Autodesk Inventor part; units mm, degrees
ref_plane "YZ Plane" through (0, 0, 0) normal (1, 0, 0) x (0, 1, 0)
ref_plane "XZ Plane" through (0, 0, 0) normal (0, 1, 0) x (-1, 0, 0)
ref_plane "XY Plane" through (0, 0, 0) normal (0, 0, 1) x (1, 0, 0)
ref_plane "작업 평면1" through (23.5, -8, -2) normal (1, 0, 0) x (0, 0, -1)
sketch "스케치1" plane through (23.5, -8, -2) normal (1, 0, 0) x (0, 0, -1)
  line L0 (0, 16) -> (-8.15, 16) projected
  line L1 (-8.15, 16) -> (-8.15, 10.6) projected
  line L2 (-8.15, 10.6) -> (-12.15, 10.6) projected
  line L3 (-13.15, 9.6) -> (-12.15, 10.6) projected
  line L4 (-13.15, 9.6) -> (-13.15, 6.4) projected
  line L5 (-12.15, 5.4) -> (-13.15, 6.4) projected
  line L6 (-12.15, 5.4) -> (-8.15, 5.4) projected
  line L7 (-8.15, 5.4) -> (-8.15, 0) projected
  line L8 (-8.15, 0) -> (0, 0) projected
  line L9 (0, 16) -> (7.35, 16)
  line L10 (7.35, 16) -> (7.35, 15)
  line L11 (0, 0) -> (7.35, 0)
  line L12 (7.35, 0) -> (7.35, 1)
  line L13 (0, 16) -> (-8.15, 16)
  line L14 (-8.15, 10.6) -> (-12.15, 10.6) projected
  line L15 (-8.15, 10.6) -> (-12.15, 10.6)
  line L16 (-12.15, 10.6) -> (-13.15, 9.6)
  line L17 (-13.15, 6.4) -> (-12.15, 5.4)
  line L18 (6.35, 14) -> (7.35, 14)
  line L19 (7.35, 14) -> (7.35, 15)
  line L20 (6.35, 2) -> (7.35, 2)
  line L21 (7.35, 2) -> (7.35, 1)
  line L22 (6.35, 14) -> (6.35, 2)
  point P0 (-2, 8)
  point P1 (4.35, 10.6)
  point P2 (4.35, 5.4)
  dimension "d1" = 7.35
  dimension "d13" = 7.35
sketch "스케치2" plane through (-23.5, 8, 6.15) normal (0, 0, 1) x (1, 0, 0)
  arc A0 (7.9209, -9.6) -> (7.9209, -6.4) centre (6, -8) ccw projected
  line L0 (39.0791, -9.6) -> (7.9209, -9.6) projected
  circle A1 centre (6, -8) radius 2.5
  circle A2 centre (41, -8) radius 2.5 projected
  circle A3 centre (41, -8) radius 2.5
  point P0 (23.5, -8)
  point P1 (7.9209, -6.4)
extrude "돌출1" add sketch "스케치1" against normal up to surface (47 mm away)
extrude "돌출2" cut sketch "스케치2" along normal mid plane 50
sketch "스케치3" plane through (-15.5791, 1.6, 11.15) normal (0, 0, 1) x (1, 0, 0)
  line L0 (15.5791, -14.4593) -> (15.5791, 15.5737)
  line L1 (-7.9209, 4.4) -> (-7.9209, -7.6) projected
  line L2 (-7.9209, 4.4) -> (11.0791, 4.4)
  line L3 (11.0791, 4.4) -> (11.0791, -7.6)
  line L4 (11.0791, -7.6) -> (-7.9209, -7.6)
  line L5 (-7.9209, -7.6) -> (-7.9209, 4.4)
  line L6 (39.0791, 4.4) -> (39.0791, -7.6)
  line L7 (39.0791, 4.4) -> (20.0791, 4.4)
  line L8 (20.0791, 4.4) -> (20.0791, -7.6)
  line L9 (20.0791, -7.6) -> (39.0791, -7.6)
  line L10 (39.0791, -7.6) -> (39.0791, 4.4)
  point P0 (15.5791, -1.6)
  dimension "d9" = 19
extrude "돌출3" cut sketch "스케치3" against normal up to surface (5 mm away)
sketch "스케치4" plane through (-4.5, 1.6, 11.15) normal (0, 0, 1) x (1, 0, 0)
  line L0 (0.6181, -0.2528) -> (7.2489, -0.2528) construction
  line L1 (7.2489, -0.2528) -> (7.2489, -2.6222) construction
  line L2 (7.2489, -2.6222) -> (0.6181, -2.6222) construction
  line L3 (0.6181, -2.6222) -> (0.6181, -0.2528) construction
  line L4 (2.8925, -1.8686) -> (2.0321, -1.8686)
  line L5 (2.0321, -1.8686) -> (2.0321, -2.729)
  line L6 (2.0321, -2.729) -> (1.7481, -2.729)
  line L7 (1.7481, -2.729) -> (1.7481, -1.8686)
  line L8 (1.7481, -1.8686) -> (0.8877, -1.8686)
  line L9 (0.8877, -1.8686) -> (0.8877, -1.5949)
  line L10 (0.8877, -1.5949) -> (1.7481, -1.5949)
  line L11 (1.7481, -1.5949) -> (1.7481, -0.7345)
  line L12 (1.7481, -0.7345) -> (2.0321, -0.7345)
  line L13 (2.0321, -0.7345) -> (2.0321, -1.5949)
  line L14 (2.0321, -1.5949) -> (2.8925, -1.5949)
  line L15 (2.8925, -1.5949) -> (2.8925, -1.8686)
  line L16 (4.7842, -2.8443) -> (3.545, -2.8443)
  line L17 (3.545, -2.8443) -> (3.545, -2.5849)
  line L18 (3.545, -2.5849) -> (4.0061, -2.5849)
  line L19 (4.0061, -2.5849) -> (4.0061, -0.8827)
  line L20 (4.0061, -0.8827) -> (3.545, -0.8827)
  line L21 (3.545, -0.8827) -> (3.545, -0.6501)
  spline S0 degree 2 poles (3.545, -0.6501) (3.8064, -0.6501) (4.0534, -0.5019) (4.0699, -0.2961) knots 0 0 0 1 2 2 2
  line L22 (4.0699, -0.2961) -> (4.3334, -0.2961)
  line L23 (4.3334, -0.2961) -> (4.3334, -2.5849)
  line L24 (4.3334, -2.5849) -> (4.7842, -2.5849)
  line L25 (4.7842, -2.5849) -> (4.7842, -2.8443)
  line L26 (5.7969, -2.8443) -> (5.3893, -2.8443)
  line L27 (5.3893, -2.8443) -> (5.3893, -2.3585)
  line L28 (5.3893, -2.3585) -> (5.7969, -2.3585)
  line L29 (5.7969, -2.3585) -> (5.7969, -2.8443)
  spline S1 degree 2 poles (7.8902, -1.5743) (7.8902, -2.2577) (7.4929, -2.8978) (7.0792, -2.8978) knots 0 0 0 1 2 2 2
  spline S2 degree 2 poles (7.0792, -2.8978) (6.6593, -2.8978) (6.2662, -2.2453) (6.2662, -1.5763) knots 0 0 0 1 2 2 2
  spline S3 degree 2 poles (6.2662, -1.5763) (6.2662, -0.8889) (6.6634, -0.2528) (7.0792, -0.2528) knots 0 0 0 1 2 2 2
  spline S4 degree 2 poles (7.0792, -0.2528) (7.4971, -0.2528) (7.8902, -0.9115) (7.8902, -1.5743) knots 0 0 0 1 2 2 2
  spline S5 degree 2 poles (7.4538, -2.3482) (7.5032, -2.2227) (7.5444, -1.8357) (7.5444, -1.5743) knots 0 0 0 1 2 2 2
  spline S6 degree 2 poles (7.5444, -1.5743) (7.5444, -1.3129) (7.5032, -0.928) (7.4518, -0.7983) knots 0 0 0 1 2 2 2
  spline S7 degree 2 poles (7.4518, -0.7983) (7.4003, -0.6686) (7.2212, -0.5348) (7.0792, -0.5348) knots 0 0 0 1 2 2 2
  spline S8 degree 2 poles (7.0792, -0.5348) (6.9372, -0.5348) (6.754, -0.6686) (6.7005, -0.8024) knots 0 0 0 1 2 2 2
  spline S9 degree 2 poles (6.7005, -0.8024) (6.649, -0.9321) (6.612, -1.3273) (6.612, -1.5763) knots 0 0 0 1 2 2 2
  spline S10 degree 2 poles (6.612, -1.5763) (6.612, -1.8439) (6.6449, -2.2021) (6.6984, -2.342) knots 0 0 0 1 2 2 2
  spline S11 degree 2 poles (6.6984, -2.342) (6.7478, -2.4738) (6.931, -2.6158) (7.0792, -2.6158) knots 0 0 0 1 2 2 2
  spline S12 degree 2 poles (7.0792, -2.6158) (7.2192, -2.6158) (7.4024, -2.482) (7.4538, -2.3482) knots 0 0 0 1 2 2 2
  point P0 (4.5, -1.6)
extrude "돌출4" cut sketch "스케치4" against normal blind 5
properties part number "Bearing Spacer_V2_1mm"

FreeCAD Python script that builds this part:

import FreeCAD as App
import Part
import Sketcher


def add_polygon(sketch, points):
    """Adds a closed chain of lines whose ends are joined by coincident constraints."""
    first, n = sketch.GeometryCount, len(points)
    for a, b in zip(points, points[1:] + points[:1]):
        sketch.addGeometry(Part.LineSegment(App.Vector(*a, 0), App.Vector(*b, 0)), False)
    for i in range(n):
        sketch.addConstraint(Sketcher.Constraint("Coincident", first + i, 2, first + (i + 1) % n, 1))

doc = App.newDocument("Part")
body = doc.addObject("PartDesign::Body", "Body")

# Sketch on YZ plane
sketch1 = body.newObject("Sketcher::SketchObject", "Sketch")
sketch1.AttachmentSupport = (doc.getObject("YZ_Plane"), [""])
sketch1.MapMode = "FlatFace"
sketch1.AttachmentOffset = App.Placement(App.Vector(0, 0, 23.5), App.Rotation())
add_polygon(sketch1, [(8, -9.3), (8, 6.2), (2.6, 6.2), (2.6, 10.2), (1.6, 11.2), (-1.6, 11.2), (-2.6, 10.2), (-2.6, 6.2), (-8, 6.2), (-8, -9.3), (-6, -9.3), (-6, -8.3), (6, -8.3), (6, -9.3)])  # lines 0-13
sketch1.addConstraint([
    Sketcher.Constraint("Vertical", 0),
    Sketcher.Constraint("Horizontal", 1),
    Sketcher.Constraint("Vertical", 2),
    Sketcher.Constraint("Horizontal", 4),
    Sketcher.Constraint("Vertical", 6),
    Sketcher.Constraint("Horizontal", 7),
    Sketcher.Constraint("Vertical", 8),
    Sketcher.Constraint("Horizontal", 9),
    Sketcher.Constraint("Vertical", 10),
    Sketcher.Constraint("Horizontal", 11),
    Sketcher.Constraint("Vertical", 12),
    Sketcher.Constraint("Horizontal", 13),
    Sketcher.Constraint("Symmetric", 2, 2, 5, 2, -2),
    Sketcher.Constraint("Symmetric", 0, 2, 7, 2, -2),
    Sketcher.Constraint("Symmetric", 9, 2, 12, 2, -2),
    Sketcher.Constraint("Perpendicular", 3, 5),
    Sketcher.Constraint("Equal", 3, 5),
    Sketcher.Constraint("DistanceX", 9, 1, 9, 2, 2.0),
    Sketcher.Constraint("DistanceX", 11, 1, 11, 2, 12.0),
    Sketcher.Constraint("DistanceY", 2, 1, 2, 2, 4.0),
    Sketcher.Constraint("DistanceY", 10, 1, 10, 2, 1.0),
    Sketcher.Constraint("DistanceX", 1, 2, 1, 1, 5.4),
    Sketcher.Constraint("DistanceX", 4, 2, 4, 1, 3.2),
    Sketcher.Constraint("DistanceY", 0, 1, 0, 2, 15.5),
    Sketcher.Constraint("DistanceY", -1, 1, 0, 2, 6.15),
])
pad1 = body.newObject("PartDesign::Pad", "Pad")
pad1.Profile = sketch1
pad1.Length = 47
pad1.Reversed = True

# Sketch on XY plane
sketch2 = body.newObject("Sketcher::SketchObject", "Sketch001")
sketch2.AttachmentSupport = (doc.getObject("XY_Plane"), [""])
sketch2.MapMode = "FlatFace"
sketch2.AttachmentOffset = App.Placement(App.Vector(0, 0, 6.15), App.Rotation())
sketch2.addGeometry([
    Part.Circle(App.Vector(-17.5, 0, 0), App.Vector(0, 0, 1), 2.5),
    Part.Circle(App.Vector(17.5, 0, 0), App.Vector(0, 0, 1), 2.5),
], False)
sketch2.addConstraint([
    Sketcher.Constraint("Equal", 0, 1),
    Sketcher.Constraint("Symmetric", 0, 3, 1, 3, -1, 1),
    Sketcher.Constraint("PointOnObject", 0, 3, -1),
    Sketcher.Constraint("Diameter", 0, 5.0),
    Sketcher.Constraint("DistanceX", 0, 3, 1, 3, 35.0),
])
pocket1 = body.newObject("PartDesign::Pocket", "Pocket")
pocket1.Profile = sketch2
pocket1.Length = 50
pocket1.Midplane = True

# Sketch on XY plane
sketch3 = body.newObject("Sketcher::SketchObject", "Sketch002")
sketch3.AttachmentSupport = (doc.getObject("XY_Plane"), [""])
sketch3.MapMode = "FlatFace"
sketch3.AttachmentOffset = App.Placement(App.Vector(0, 0, 11.15), App.Rotation())
add_polygon(sketch3, [(-4, 6), (-24, 6), (-24, -6), (-4, -6)])  # lines 0-3
add_polygon(sketch3, [(24, -6), (24, 6), (4, 6), (4, -6)])  # lines 4-7
sketch3.addConstraint([
    Sketcher.Constraint("Horizontal", 0),
    Sketcher.Constraint("Vertical", 1),
    Sketcher.Constraint("Horizontal", 2),
    Sketcher.Constraint("Vertical", 3),
    Sketcher.Constraint("Vertical", 4),
    Sketcher.Constraint("Horizontal", 5),
    Sketcher.Constraint("Vertical", 6),
    Sketcher.Constraint("Horizontal", 7),
    Sketcher.Constraint("Symmetric", 1, 2, 4, 2, -1, 1),
    Sketcher.Constraint("Symmetric", 3, 2, 6, 2, -1, 1),
    Sketcher.Constraint("Horizontal", 3, 2, 4, 2),
    Sketcher.Constraint("DistanceX", 0, 2, 0, 1, 19.0),
    Sketcher.Constraint("DistanceY", 1, 2, 1, 1, 12.0),
    Sketcher.Constraint("DistanceX", 3, 2, 4, 2, 28.0),
])
pocket2 = body.newObject("PartDesign::Pocket", "Pocket001")
pocket2.Profile = sketch3
pocket2.Length = 5

# Sketch on XY plane
sketch4 = body.newObject("Sketcher::SketchObject", "Sketch003")
sketch4.AttachmentSupport = (doc.getObject("XY_Plane"), [""])
sketch4.MapMode = "FlatFace"
sketch4.AttachmentOffset = App.Placement(App.Vector(0, 0, 11.15), App.Rotation())
add_polygon(sketch4, [(-2.4679, -0.2686), (-1.6075, -0.2686), (-1.6075, 0.0051), (-2.4679, 0.0051), (-2.4679, 0.8655), (-2.7519, 0.8655), (-2.7519, 0.0051), (-3.6123, 0.0051), (-3.6123, -0.2686), (-2.7519, -0.2686), (-2.7519, -1.129), (-2.4679, -1.129)])  # lines 0-11
sketch4.addGeometry(Part.LineSegment(App.Vector(-0.955, -1.2443, 0), App.Vector(0.2842, -1.2443, 0)), False)  # 12
sketch4.addGeometry(Part.LineSegment(App.Vector(0.2842, -1.2443, 0), App.Vector(0.2842, -0.9849, 0)), False)  # 13
sketch4.addGeometry(Part.LineSegment(App.Vector(0.2842, -0.9849, 0), App.Vector(-0.1666, -0.9849, 0)), False)  # 14
sketch4.addGeometry(Part.LineSegment(App.Vector(-0.1666, -0.9849, 0), App.Vector(-0.1666, 1.3039, 0)), False)  # 15
sketch4.addGeometry(Part.LineSegment(App.Vector(-0.1666, 1.3039, 0), App.Vector(-0.4301, 1.3039, 0)), False)  # 16
sketch4.addGeometry(Part.BSplineCurve([App.Vector(-0.955, 0.9499, 0), App.Vector(-0.6936, 0.9499, 0), App.Vector(-0.4466, 1.0981, 0), App.Vector(-0.4301, 1.3039, 0)], [3, 1, 3], [0, 1, 2], False, 2, [1, 1, 1, 1], False), False)  # 17
sketch4.addGeometry(Part.LineSegment(App.Vector(-0.955, 0.9499, 0), App.Vector(-0.955, 0.7173, 0)), False)  # 18
sketch4.addGeometry(Part.LineSegment(App.Vector(-0.955, 0.7173, 0), App.Vector(-0.4939, 0.7173, 0)), False)  # 19
sketch4.addGeometry(Part.LineSegment(App.Vector(-0.4939, 0.7173, 0), App.Vector(-0.4939, -0.9849, 0)), False)  # 20
sketch4.addGeometry(Part.LineSegment(App.Vector(-0.4939, -0.9849, 0), App.Vector(-0.955, -0.9849, 0)), False)  # 21
sketch4.addGeometry(Part.LineSegment(App.Vector(-0.955, -0.9849, 0), App.Vector(-0.955, -1.2443, 0)), False)  # 22
add_polygon(sketch4, [(0.8893, -1.2443), (1.2969, -1.2443), (1.2969, -0.7585), (0.8893, -0.7585)])  # lines 23-26
sketch4.addGeometry(Part.BSplineCurve([App.Vector(3.3902, 0.0257, 0), App.Vector(3.3902, -0.6577, 0), App.Vector(2.9929, -1.2978, 0), App.Vector(2.5792, -1.2978, 0)], [3, 1, 3], [0, 1, 2], False, 2, [1, 1, 1, 1], False), False)  # 27
sketch4.addGeometry(Part.BSplineCurve([App.Vector(2.5792, 1.3472, 0), App.Vector(2.9971, 1.3472, 0), App.Vector(3.3902, 0.6885, 0), App.Vector(3.3902, 0.0257, 0)], [3, 1, 3], [0, 1, 2], False, 2, [1, 1, 1, 1], False), False)  # 28
sketch4.addGeometry(Part.BSplineCurve([App.Vector(1.7662, 0.0237, 0), App.Vector(1.7662, 0.7111, 0), App.Vector(2.1634, 1.3472, 0), App.Vector(2.5792, 1.3472, 0)], [3, 1, 3], [0, 1, 2], False, 2, [1, 1, 1, 1], False), False)  # 29
sketch4.addGeometry(Part.BSplineCurve([App.Vector(2.5792, -1.2978, 0), App.Vector(2.1593, -1.2978, 0), App.Vector(1.7662, -0.6453, 0), App.Vector(1.7662, 0.0237, 0)], [3, 1, 3], [0, 1, 2], False, 2, [1, 1, 1, 1], False), False)  # 30
sketch4.addGeometry(Part.BSplineCurve([App.Vector(2.9538, -0.7482, 0), App.Vector(3.0032, -0.6227, 0), App.Vector(3.0444, -0.2357, 0), App.Vector(3.0444, 0.0257, 0)], [3, 1, 3], [0, 1, 2], False, 2, [1, 1, 1, 1], False), False)  # 31
sketch4.addGeometry(Part.BSplineCurve([App.Vector(2.5792, -1.0158, 0), App.Vector(2.7192, -1.0158, 0), App.Vector(2.9024, -0.882, 0), App.Vector(2.9538, -0.7482, 0)], [3, 1, 3], [0, 1, 2], False, 2, [1, 1, 1, 1], False), False)  # 32
sketch4.addGeometry(Part.BSplineCurve([App.Vector(2.1984, -0.742, 0), App.Vector(2.2478, -0.8738, 0), App.Vector(2.431, -1.0158, 0), App.Vector(2.5792, -1.0158, 0)], [3, 1, 3], [0, 1, 2], False, 2, [1, 1, 1, 1], False), False)  # 33
sketch4.addGeometry(Part.BSplineCurve([App.Vector(2.112, 0.0237, 0), App.Vector(2.112, -0.2439, 0), App.Vector(2.1449, -0.6021, 0), App.Vector(2.1984, -0.742, 0)], [3, 1, 3], [0, 1, 2], False, 2, [1, 1, 1, 1], False), False)  # 34
sketch4.addGeometry(Part.BSplineCurve([App.Vector(2.2005, 0.7976, 0), App.Vector(2.149, 0.6679, 0), App.Vector(2.112, 0.2727, 0), App.Vector(2.112, 0.0237, 0)], [3, 1, 3], [0, 1, 2], False, 2, [1, 1, 1, 1], False), False)  # 35
sketch4.addGeometry(Part.BSplineCurve([App.Vector(2.5792, 1.0652, 0), App.Vector(2.4372, 1.0652, 0), App.Vector(2.254, 0.9314, 0), App.Vector(2.2005, 0.7976, 0)], [3, 1, 3], [0, 1, 2], False, 2, [1, 1, 1, 1], False), False)  # 36
sketch4.addGeometry(Part.BSplineCurve([App.Vector(2.9518, 0.8017, 0), App.Vector(2.9003, 0.9314, 0), App.Vector(2.7212, 1.0652, 0), App.Vector(2.5792, 1.0652, 0)], [3, 1, 3], [0, 1, 2], False, 2, [1, 1, 1, 1], False), False)  # 37
sketch4.addGeometry(Part.BSplineCurve([App.Vector(3.0444, 0.0257, 0), App.Vector(3.0444, 0.2871, 0), App.Vector(3.0032, 0.672, 0), App.Vector(2.9518, 0.8017, 0)], [3, 1, 3], [0, 1, 2], False, 2, [1, 1, 1, 1], False), False)  # 38
sketch4.addConstraint([
    Sketcher.Constraint("Block", 17),
    Sketcher.Constraint("Block", 27),
    Sketcher.Constraint("Block", 28),
    Sketcher.Constraint("Block", 29),
    Sketcher.Constraint("Block", 30),
    Sketcher.Constraint("Block", 31),
    Sketcher.Constraint("Block", 32),
    Sketcher.Constraint("Block", 33),
    Sketcher.Constraint("Block", 34),
    Sketcher.Constraint("Block", 35),
    Sketcher.Constraint("Block", 36),
    Sketcher.Constraint("Block", 37),
    Sketcher.Constraint("Block", 38),
    Sketcher.Constraint("Coincident", 12, 2, 13, 1),
    Sketcher.Constraint("Coincident", 13, 2, 14, 1),
    Sketcher.Constraint("Coincident", 14, 2, 15, 1),
    Sketcher.Constraint("Coincident", 15, 2, 16, 1),
    Sketcher.Constraint("Coincident", 16, 2, 17, 2),
    Sketcher.Constraint("Coincident", 17, 1, 18, 1),
    Sketcher.Constraint("Coincident", 18, 2, 19, 1),
    Sketcher.Constraint("Coincident", 19, 2, 20, 1),
    Sketcher.Constraint("Coincident", 20, 2, 21, 1),
    Sketcher.Constraint("Coincident", 21, 2, 22, 1),
    Sketcher.Constraint("Coincident", 22, 2, 12, 1),
    Sketcher.Constraint("Horizontal", 0),
    Sketcher.Constraint("Vertical", 1),
    Sketcher.Constraint("Horizontal", 2),
    Sketcher.Constraint("Vertical", 3),
    Sketcher.Constraint("Horizontal", 4),
    Sketcher.Constraint("Vertical", 5),
    Sketcher.Constraint("Horizontal", 6),
    Sketcher.Constraint("Vertical", 7),
    Sketcher.Constraint("Horizontal", 8),
    Sketcher.Constraint("Vertical", 9),
    Sketcher.Constraint("Horizontal", 10),
    Sketcher.Constraint("Vertical", 11),
    Sketcher.Constraint("Horizontal", 12),
    Sketcher.Constraint("Vertical", 13),
    Sketcher.Constraint("Horizontal", 14),
    Sketcher.Constraint("Vertical", 15),
    Sketcher.Constraint("Horizontal", 16),
    Sketcher.Constraint("Vertical", 18),
    Sketcher.Constraint("Horizontal", 19),
    Sketcher.Constraint("Vertical", 20),
    Sketcher.Constraint("Horizontal", 21),
    Sketcher.Constraint("Vertical", 22),
    Sketcher.Constraint("Horizontal", 23),
    Sketcher.Constraint("Vertical", 24),
    Sketcher.Constraint("Horizontal", 25),
    Sketcher.Constraint("Vertical", 26),
    Sketcher.Constraint("Horizontal", 2, 2, 5, 2),
    Sketcher.Constraint("Horizontal", 0, 2, 7, 2),
    Sketcher.Constraint("Horizontal", 14, 2, 20, 2),
    Sketcher.Constraint("Horizontal", 22, 2, 23, 2),
    Sketcher.Constraint("Vertical", 5, 2, 8, 2),
    Sketcher.Constraint("Vertical", 3, 2, 10, 2),
    Sketcher.Constraint("Vertical", 18, 2, 21, 2),
    Sketcher.Constraint("Equal", 2, 6),
    Sketcher.Constraint("Equal", 8, 3),
    Sketcher.Constraint("Equal", 5, 9),
    Sketcher.Constraint("DistanceX", 4, 2, 4, 1, 0.284),
    Sketcher.Constraint("DistanceX", 19, 1, 19, 2, 0.461),
    Sketcher.Constraint("DistanceY", 13, 2, 1, 2, 0.99),
    Sketcher.Constraint("DistanceX", 0, 1, 0, 2, 0.8604),
    Sketcher.Constraint("DistanceX", 12, 1, 12, 2, 1.2392),
    Sketcher.Constraint("DistanceX", 14, 2, 14, 1, 0.4508),
    Sketcher.Constraint("DistanceX", 23, 1, 23, 2, 0.4076),
    Sketcher.Constraint("DistanceY", 1, 1, 1, 2, 0.2737),
    Sketcher.Constraint("DistanceY", 13, 1, 13, 2, 0.2594),
    Sketcher.Constraint("DistanceY", 15, 1, 15, 2, 2.2888),
    Sketcher.Constraint("DistanceY", 18, 2, 18, 1, 0.2326),
    Sketcher.Constraint("DistanceY", 24, 1, 24, 2, 0.4858),
    Sketcher.Constraint("DistanceX", 2, 2, -1, 1, 2.468),
    Sketcher.Constraint("DistanceX", -1, 1, 23, 2, 1.297),
])
pocket3 = body.newObject("PartDesign::Pocket", "Pocket002")
pocket3.Profile = sketch4
pocket3.Length = 5

doc.recompute()
